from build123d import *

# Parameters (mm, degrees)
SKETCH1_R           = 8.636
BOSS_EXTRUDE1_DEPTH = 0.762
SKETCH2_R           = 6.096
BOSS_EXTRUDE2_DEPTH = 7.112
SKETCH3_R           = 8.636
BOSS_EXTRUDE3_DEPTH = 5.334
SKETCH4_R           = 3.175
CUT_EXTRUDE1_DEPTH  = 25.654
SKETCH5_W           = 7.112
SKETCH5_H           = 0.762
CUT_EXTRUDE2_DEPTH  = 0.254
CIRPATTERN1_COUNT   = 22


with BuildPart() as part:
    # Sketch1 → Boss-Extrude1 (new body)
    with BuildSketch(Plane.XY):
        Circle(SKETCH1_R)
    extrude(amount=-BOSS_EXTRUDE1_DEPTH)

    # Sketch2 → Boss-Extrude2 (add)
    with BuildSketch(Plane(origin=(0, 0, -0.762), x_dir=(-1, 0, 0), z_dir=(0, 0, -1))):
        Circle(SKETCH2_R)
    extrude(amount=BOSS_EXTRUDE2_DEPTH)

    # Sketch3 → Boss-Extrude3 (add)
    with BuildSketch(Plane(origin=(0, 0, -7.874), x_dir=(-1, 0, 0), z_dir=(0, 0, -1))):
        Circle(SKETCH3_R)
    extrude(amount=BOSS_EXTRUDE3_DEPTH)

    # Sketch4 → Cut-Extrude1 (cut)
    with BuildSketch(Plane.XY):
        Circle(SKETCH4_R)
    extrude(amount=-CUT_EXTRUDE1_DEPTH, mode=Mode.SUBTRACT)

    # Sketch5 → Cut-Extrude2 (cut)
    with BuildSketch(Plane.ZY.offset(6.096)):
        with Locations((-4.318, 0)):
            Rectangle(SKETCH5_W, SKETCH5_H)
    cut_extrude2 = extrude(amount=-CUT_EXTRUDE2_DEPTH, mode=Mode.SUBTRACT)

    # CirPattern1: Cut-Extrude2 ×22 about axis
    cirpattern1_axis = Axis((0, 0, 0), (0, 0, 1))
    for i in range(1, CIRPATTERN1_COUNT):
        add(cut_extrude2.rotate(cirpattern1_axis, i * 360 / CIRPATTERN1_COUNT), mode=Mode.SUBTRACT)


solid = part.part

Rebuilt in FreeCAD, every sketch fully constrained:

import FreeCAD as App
import Part
import Sketcher
Q = App.Units.Quantity


def add_polygon(sketch, points):
    """Adds a closed chain of lines whose ends are joined by coincident constraints."""
    first, n = sketch.GeometryCount, len(points)
    for a, b in zip(points, points[1:] + points[:1]):
        sketch.addGeometry(Part.LineSegment(App.Vector(*a, 0), App.Vector(*b, 0)), False)
    for i in range(n):
        sketch.addConstraint(Sketcher.Constraint("Coincident", first + i, 2, first + (i + 1) % n, 1))

doc = App.newDocument("Part")
body = doc.addObject("PartDesign::Body", "Body")

sketch1 = body.newObject("Sketcher::SketchObject", "Sketch")
sketch1.AttachmentSupport = (doc.getObject("XY_Plane"), [""])
sketch1.MapMode = "FlatFace"
sketch1.addGeometry(Part.Circle(App.Vector(0, 0, 0), App.Vector(0, 0, 1), 8.636), False)
sketch1.addConstraint([
    Sketcher.Constraint("Coincident", 0, 3, -1, 1),
    Sketcher.Constraint("Diameter", 0, Q("0.68 in")),
])
pad1 = body.newObject("PartDesign::Pad", "Pad")
pad1.Profile = sketch1
pad1.Length = Q("0.03 in")
pad1.Reversed = True

sketch2 = body.newObject("Sketcher::SketchObject", "Sketch001")
sketch2.AttachmentSupport = (doc.getObject("XY_Plane"), [""])
sketch2.MapMode = "FlatFace"
sketch2.AttachmentOffset = App.Placement(App.Vector(0, 0, -0.03 * 25.4), App.Rotation())
sketch2.addGeometry(Part.Circle(App.Vector(0, 0, 0), App.Vector(0, 0, 1), 6.096), False)
sketch2.addConstraint([
    Sketcher.Constraint("Coincident", 0, 3, -1, 1),
    Sketcher.Constraint("Diameter", 0, Q("0.48 in")),
])
pad2 = body.newObject("PartDesign::Pad", "Pad001")
pad2.Profile = sketch2
pad2.Length = Q("0.28 in")
pad2.Reversed = True

sketch3 = body.newObject("Sketcher::SketchObject", "Sketch002")
sketch3.AttachmentSupport = (doc.getObject("XY_Plane"), [""])
sketch3.MapMode = "FlatFace"
sketch3.AttachmentOffset = App.Placement(App.Vector(0, 0, -0.31 * 25.4), App.Rotation())
sketch3.addGeometry(Part.Circle(App.Vector(0, 0, 0), App.Vector(0, 0, 1), 8.636), False)
sketch3.addConstraint([
    Sketcher.Constraint("Coincident", 0, 3, -1, 1),
    Sketcher.Constraint("Diameter", 0, Q("0.68 in")),
])
pad3 = body.newObject("PartDesign::Pad", "Pad002")
pad3.Profile = sketch3
pad3.Length = Q("0.21 in")
pad3.Reversed = True

sketch4 = body.newObject("Sketcher::SketchObject", "Sketch003")
sketch4.AttachmentSupport = (doc.getObject("XY_Plane"), [""])
sketch4.MapMode = "FlatFace"
sketch4.addGeometry(Part.Circle(App.Vector(0, 0, 0), App.Vector(0, 0, 1), 3.175), False)
sketch4.addConstraint([
    Sketcher.Constraint("Coincident", 0, 3, -1, 1),
    Sketcher.Constraint("Diameter", 0, Q("0.25 in")),
])
pocket1 = body.newObject("PartDesign::Pocket", "Pocket")
pocket1.Profile = sketch4
pocket1.Length = Q("1.01 in")

sketch5 = body.newObject("Sketcher::SketchObject", "Sketch004")
sketch5.AttachmentSupport = (doc.getObject("YZ_Plane"), [""])
sketch5.MapMode = "FlatFace"
sketch5.AttachmentOffset = App.Placement(App.Vector(0, 0, -0.24 * 25.4), App.Rotation())
add_polygon(sketch5, [(0.381, -7.874), (-0.381, -7.874), (-0.381, -0.762), (0.381, -0.762)])
sketch5.addConstraint([
    Sketcher.Constraint("Horizontal", 0),
    Sketcher.Constraint("Vertical", 1),
    Sketcher.Constraint("Horizontal", 2),
    Sketcher.Constraint("Vertical", 3),
    Sketcher.Constraint("DistanceX", 0, 2, 0, 1, Q("0.03 in")),
    Sketcher.Constraint("DistanceY", 1, 1, 1, 2, Q("0.28 in")),
    Sketcher.Constraint("DistanceY", 0, 2, -1, 1, Q("0.31 in")),
    Sketcher.Constraint("DistanceX", 0, 2, -1, 1, Q("0.015 in")),
])
pocket2 = body.newObject("PartDesign::Pocket", "Pocket001")
pocket2.Profile = sketch5
pocket2.Length = Q("0.01 in")
pocket2.Reversed = True
doc.recompute()

polarpattern = body.newObject("PartDesign::PolarPattern", "PolarPattern")
polarpattern.Originals = [pocket2]
polarpattern.Axis = (doc.getObject("Z_Axis"), [""])
polarpattern.Angle = 360
polarpattern.Occurrences = 22
body.Tip = polarpattern

doc.recompute()
